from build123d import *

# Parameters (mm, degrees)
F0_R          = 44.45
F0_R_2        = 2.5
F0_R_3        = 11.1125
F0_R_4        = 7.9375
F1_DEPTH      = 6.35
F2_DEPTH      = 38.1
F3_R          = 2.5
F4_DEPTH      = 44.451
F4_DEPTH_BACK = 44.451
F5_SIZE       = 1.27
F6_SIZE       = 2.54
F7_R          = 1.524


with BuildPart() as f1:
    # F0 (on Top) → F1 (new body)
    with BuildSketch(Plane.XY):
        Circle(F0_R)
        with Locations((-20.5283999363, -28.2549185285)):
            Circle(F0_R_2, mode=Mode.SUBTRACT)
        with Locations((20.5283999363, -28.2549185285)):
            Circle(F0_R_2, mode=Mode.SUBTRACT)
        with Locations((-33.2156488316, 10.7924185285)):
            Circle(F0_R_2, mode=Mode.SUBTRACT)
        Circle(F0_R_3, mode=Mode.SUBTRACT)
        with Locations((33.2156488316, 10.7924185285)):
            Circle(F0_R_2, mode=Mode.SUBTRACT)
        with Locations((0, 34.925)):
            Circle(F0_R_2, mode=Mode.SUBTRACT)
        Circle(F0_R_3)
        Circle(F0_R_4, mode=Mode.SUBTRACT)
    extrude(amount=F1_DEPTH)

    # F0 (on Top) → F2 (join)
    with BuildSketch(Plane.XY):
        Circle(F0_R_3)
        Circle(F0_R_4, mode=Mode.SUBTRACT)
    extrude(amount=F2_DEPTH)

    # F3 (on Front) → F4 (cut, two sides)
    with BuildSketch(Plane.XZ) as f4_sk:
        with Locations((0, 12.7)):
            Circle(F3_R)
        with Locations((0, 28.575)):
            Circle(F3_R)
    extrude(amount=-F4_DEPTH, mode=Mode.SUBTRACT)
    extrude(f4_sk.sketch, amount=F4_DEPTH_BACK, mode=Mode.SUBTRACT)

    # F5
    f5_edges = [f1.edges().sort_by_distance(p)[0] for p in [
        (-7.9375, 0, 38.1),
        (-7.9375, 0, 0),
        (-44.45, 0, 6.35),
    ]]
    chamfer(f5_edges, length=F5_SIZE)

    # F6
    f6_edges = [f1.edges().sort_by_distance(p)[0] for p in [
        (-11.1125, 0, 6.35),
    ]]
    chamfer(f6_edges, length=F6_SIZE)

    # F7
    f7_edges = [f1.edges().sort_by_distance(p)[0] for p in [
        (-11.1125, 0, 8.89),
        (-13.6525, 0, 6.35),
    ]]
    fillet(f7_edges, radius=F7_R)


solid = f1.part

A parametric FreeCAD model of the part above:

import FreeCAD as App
import Part
import Sketcher

V = App.Vector
Q = App.Units.Quantity


def edges_at(feature, points):
    """Names of the edges that pass closest to the given points."""
    edges = feature.Shape.Edges
    near = lambda p: min(range(len(edges)), key=lambda i: edges[i].distToShape(Part.Vertex(*p))[0])
    return sorted({f"Edge{near(p) + 1}" for p in points})

doc = App.newDocument("Part")
body = doc.addObject("PartDesign::Body", "Body")

sketch1 = body.newObject("Sketcher::SketchObject", "Sketch")
sketch1.AttachmentSupport = (doc.getObject("XY_Plane"), [""])
sketch1.MapMode = "FlatFace"
sketch1.addGeometry([
    Part.Circle(V(0, 0, 0), V(0, 0, 1), 44.5),
    Part.Circle(V(-20.5, -28.3, 0), V(0, 0, 1), 2.5),
    Part.Circle(V(20.5, -28.3, 0), V(0, 0, 1), 2.5),
    Part.Circle(V(0, 0, 0), V(0, 0, 1), 7.9),
    Part.Circle(V(-33.2, 10.8, 0), V(0, 0, 1), 2.5),
    Part.Circle(V(33.2, 10.8, 0), V(0, 0, 1), 2.5),
    Part.Circle(V(0, 34.9, 0), V(0, 0, 1), 2.5),
], False)
sketch1.addConstraint([
    Sketcher.Constraint("Coincident", 0, 3, -1, 1),
    Sketcher.Constraint("Coincident", 3, 3, -1, 1),
    Sketcher.Constraint("Equal", 1, 2),
    Sketcher.Constraint("Equal", 2, 4),
    Sketcher.Constraint("Equal", 4, 5),
    Sketcher.Constraint("Equal", 5, 6),
    Sketcher.Constraint("Symmetric", 1, 3, 2, 3, -2),
    Sketcher.Constraint("Symmetric", 4, 3, 5, 3, -2),
    Sketcher.Constraint("PointOnObject", 6, 3, -2),
    Sketcher.Constraint("Diameter", 0, Q("3.5 in")),
    Sketcher.Constraint("Diameter", 3, Q("0.625 in")),
    Sketcher.Constraint("Diameter", 1, Q("5 mm")),
    Sketcher.Constraint("DistanceY", -1, 1, 6, 3, Q("1.375 in")),
    Sketcher.Constraint("DistanceX", 1, 3, -1, 1, Q("20.5284 mm")),
    Sketcher.Constraint("DistanceY", 1, 3, -1, 1, Q("28.254919 mm")),
    Sketcher.Constraint("DistanceX", 4, 3, -1, 1, Q("33.215649 mm")),
    Sketcher.Constraint("DistanceY", -1, 1, 4, 3, Q("10.792419 mm")),
])
pad1 = body.newObject("PartDesign::Pad", "Pad")
pad1.Profile = sketch1
pad1.Length = Q("0.25 in")

sketch2 = body.newObject("Sketcher::SketchObject", "Sketch001")
sketch2.AttachmentSupport = (doc.getObject("XY_Plane"), [""])
sketch2.MapMode = "FlatFace"
sketch2.addGeometry([
    Part.Circle(V(0, 0, 0), V(0, 0, 1), 11),
    Part.Circle(V(0, 0, 0), V(0, 0, 1), 8),
], False)
sketch2.addConstraint([
    Sketcher.Constraint("Coincident", 0, 3, -1, 1),
    Sketcher.Constraint("Coincident", 1, 3, -1, 1),
    Sketcher.Constraint("Diameter", 0, Q("0.875 in")),
    Sketcher.Constraint("Diameter", 1, Q("0.625 in")),
])
pad2 = body.newObject("PartDesign::Pad", "Pad001")
pad2.Profile = sketch2
pad2.Length = Q("1.5 in")

sketch3 = body.newObject("Sketcher::SketchObject", "Sketch002")
sketch3.AttachmentSupport = (doc.getObject("XZ_Plane"), [""])
sketch3.MapMode = "FlatFace"
sketch3.addGeometry([
    Part.Circle(V(0, 12.7, 0), V(0, 0, 1), 2.5),
    Part.Circle(V(0, 28.6, 0), V(0, 0, 1), 2.5),
], False)
sketch3.addConstraint([
    Sketcher.Constraint("Equal", 0, 1),
    Sketcher.Constraint("PointOnObject", 0, 3, -2),
    Sketcher.Constraint("PointOnObject", 1, 3, -2),
    Sketcher.Constraint("DistanceY", -1, 1, 0, 3, Q("0.5 in")),
    Sketcher.Constraint("Diameter", 0, Q("5 mm")),
    Sketcher.Constraint("DistanceY", -1, 1, 1, 3, Q("1.125 in")),
])
pocket1 = body.newObject("PartDesign::Pocket", "Pocket")
pocket1.Profile = sketch3
pocket1.Type = "ThroughAll"
pocket1.Midplane = True
doc.recompute()

chamfer = body.newObject("PartDesign::Chamfer", "Chamfer")
chamfer.Base = (pocket1, edges_at(pocket1, [(-7.938, 0, 38.1), (-7.938, 0, 0), (-44.45, 0, 6.35)]))
chamfer.Size = Q("0.05 in")
doc.recompute()

chamfer2 = body.newObject("PartDesign::Chamfer", "Chamfer001")
chamfer2.Base = (chamfer, edges_at(chamfer, [(-11.113, 0, 6.35)]))
chamfer2.Size = Q("0.1 in")
doc.recompute()

fillet = body.newObject("PartDesign::Fillet", "Fillet")
fillet.Base = (chamfer2, edges_at(chamfer2, [(-11.113, 0, 8.89), (-13.652, 0, 6.35)]))
fillet.Radius = Q("0.06 in")

doc.recompute()
